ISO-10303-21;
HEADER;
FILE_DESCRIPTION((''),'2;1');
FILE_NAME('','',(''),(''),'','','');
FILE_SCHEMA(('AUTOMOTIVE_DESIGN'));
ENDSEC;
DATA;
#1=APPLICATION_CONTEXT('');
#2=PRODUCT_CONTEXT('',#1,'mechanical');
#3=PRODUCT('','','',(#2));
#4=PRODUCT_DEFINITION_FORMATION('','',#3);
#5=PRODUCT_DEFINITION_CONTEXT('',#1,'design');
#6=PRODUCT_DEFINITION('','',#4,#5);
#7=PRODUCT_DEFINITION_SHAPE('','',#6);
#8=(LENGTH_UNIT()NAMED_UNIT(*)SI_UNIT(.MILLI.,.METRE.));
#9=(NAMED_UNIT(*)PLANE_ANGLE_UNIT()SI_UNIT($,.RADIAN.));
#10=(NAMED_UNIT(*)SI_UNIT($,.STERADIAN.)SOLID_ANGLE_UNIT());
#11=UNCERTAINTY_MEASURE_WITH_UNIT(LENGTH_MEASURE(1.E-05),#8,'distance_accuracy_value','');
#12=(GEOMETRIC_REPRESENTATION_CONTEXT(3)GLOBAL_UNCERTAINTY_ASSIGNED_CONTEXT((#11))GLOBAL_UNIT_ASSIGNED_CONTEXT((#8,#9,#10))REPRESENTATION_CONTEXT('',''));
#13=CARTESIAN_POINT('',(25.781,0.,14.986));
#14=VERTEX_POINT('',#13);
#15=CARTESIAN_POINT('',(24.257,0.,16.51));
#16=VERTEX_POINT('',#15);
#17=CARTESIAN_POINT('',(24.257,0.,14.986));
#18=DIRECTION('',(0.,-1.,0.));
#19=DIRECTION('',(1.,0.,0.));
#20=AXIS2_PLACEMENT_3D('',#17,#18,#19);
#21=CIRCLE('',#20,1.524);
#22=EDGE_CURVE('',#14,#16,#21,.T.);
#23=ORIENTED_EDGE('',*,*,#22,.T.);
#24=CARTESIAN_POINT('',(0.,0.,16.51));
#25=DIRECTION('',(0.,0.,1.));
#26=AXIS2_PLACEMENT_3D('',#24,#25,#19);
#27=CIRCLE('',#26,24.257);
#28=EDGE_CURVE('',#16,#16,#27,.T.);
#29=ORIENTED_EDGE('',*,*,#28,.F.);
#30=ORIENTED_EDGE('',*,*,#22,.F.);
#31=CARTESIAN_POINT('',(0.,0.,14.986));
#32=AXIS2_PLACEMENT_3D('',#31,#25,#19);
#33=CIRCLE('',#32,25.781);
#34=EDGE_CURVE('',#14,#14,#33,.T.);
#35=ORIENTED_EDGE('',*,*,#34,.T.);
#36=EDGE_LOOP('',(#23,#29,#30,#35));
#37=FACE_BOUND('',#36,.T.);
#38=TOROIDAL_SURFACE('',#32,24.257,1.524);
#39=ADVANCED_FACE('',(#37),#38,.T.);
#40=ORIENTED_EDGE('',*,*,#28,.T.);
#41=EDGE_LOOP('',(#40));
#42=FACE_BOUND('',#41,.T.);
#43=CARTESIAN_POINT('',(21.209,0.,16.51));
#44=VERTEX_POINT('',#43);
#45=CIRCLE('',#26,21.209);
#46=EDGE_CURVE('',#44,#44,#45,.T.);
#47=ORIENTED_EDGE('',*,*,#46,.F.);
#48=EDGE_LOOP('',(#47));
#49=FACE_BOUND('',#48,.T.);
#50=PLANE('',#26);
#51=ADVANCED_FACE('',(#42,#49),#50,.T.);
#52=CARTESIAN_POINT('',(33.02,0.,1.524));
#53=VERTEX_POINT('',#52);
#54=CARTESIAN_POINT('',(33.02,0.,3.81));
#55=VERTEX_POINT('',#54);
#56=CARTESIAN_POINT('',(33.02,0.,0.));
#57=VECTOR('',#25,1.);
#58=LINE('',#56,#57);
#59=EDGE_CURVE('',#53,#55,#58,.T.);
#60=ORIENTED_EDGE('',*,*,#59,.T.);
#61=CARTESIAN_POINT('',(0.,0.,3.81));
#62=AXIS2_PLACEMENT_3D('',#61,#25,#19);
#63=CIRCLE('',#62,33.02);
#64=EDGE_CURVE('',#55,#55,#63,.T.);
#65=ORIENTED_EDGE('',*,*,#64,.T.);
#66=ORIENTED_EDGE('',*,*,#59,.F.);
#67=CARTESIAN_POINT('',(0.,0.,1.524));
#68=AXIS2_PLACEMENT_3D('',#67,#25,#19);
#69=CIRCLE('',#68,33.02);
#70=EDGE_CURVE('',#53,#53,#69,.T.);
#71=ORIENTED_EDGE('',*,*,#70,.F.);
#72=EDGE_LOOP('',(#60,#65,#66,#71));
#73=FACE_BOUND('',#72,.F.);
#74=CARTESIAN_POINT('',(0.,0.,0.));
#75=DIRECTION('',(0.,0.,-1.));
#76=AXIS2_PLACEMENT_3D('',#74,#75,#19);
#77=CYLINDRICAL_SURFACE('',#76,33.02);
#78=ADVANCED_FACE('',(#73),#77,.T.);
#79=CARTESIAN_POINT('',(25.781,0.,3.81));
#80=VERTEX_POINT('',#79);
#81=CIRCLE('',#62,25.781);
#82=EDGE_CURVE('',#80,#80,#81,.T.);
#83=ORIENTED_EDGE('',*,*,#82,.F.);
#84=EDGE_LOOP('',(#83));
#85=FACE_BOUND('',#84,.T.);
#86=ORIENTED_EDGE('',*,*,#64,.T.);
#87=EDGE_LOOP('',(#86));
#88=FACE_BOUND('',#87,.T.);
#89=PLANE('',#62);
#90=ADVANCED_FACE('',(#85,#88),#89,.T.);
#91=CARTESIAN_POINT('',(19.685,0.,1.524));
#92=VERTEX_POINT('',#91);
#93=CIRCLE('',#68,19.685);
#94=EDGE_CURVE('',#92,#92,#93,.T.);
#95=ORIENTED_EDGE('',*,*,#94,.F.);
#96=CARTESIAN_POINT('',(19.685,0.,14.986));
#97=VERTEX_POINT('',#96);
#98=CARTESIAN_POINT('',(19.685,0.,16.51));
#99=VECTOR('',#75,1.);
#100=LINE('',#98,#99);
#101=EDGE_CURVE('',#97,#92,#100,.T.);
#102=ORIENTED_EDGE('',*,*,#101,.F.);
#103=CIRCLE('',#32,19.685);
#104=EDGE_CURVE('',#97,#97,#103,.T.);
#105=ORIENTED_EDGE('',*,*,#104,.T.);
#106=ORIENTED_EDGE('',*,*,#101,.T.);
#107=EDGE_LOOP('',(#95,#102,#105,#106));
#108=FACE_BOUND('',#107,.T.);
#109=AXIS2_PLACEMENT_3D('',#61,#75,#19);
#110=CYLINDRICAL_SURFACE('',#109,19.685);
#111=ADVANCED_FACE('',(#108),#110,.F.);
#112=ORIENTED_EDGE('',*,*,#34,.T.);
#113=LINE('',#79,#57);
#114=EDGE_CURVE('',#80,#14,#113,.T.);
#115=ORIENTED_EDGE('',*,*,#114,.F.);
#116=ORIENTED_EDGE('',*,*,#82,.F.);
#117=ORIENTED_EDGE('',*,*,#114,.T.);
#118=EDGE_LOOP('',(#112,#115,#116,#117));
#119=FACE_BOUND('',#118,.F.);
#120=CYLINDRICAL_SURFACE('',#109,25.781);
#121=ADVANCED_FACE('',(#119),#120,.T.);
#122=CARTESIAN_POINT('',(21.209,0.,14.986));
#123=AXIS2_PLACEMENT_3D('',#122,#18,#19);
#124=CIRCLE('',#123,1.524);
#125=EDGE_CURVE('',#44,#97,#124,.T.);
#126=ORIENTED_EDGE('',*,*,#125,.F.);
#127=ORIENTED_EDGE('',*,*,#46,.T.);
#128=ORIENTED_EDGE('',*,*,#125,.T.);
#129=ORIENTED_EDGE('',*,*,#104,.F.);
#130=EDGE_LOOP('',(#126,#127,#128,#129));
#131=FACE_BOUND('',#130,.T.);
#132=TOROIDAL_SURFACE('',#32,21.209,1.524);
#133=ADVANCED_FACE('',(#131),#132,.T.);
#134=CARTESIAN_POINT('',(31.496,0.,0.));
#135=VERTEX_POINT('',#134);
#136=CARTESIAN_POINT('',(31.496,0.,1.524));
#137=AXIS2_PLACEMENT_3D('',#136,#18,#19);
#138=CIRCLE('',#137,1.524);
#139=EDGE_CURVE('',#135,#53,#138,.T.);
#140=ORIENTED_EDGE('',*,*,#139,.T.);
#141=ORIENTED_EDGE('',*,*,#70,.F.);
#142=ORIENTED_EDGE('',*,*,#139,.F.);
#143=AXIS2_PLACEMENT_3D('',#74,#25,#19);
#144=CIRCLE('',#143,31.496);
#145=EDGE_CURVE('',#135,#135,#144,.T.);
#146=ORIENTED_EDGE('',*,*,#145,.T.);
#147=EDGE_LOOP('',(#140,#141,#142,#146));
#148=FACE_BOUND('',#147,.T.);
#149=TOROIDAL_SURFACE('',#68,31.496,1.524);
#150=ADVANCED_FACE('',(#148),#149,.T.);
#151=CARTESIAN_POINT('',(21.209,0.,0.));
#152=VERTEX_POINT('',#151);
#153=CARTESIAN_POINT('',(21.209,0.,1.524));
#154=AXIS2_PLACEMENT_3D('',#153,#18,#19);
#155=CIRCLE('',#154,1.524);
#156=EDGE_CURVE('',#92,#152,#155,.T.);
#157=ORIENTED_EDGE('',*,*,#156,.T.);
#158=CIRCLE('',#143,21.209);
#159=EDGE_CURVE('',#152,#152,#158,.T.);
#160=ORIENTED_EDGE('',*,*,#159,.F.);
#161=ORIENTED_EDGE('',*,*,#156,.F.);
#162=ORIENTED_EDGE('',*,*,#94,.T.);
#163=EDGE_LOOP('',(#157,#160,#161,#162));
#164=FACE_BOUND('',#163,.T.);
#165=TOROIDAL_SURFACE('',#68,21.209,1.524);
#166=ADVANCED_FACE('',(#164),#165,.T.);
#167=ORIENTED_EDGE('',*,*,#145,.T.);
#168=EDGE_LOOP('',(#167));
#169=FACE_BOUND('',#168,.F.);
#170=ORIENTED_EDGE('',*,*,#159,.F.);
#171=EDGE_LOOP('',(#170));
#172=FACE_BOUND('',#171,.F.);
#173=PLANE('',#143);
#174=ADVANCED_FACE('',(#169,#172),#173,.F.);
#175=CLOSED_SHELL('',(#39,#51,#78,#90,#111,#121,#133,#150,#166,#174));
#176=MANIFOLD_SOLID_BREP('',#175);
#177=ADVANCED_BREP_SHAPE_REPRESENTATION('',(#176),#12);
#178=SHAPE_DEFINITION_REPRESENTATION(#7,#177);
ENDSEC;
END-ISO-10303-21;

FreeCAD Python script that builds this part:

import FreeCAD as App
import Part
import Sketcher
Q = App.Units.Quantity


def edges_at(feature, points):
    """Names of the edges that pass closest to the given points."""
    edges = feature.Shape.Edges
    near = lambda p: min(range(len(edges)), key=lambda i: edges[i].distToShape(Part.Vertex(*p))[0])
    return sorted({f"Edge{near(p) + 1}" for p in points})

doc = App.newDocument("Part")
params = doc.addObject("Spreadsheet::Sheet", "Params")
for row, (alias, value) in enumerate([
    ("sketch1_diameter", "2.6 in"),
    ("sketch1_diameter2", "1.55 in"),
    ("pad1_length", "0.15 in"),
    ("sketch2_diameter", "2.03 in"),
    ("sketch2_diameter2", "1.55 in"),
    ("pad2_length", "0.5 in"),
    ("fillet_radius", "0.06 in"),
], start=1):
    params.set(f"A{row}", alias)
    params.set(f"B{row}", "=" + value)
    params.setAlias(f"B{row}", alias)

body = doc.addObject("PartDesign::Body", "Body")

sketch1 = body.newObject("Sketcher::SketchObject", "Sketch")
sketch1.AttachmentSupport = (doc.getObject("XY_Plane"), [""])
sketch1.MapMode = "FlatFace"
sketch1.addGeometry([
    Part.Circle(App.Vector(0, 0, 0), App.Vector(0, 0, 1), 33),
    Part.Circle(App.Vector(0, 0, 0), App.Vector(0, 0, 1), 20),
], False)
sketch1.addConstraint([
    Sketcher.Constraint("Coincident", 0, 3, -1, 1),
    Sketcher.Constraint("Coincident", 1, 3, -1, 1),
    Sketcher.Constraint("Diameter", 0, Q("2.6 in")),
    Sketcher.Constraint("Diameter", 1, Q("1.55 in")),
])
sketch1.setExpression("Constraints[2]", "Params.sketch1_diameter")
sketch1.setExpression("Constraints[3]", "Params.sketch1_diameter2")
pad1 = body.newObject("PartDesign::Pad", "Pad")
pad1.Profile = sketch1
pad1.setExpression("Length", "Params.pad1_length")

sketch2 = body.newObject("Sketcher::SketchObject", "Sketch001")
sketch2.AttachmentSupport = (doc.getObject("XY_Plane"), [""])
sketch2.MapMode = "FlatFace"
sketch2.AttachmentOffset = App.Placement(App.Vector(0, 0, 0.15 * 25.4), App.Rotation())
sketch2.addGeometry([
    Part.Circle(App.Vector(0, 0, 0), App.Vector(0, 0, 1), 26),
    Part.Circle(App.Vector(0, 0, 0), App.Vector(0, 0, 1), 20),
], False)
sketch2.addConstraint([
    Sketcher.Constraint("Coincident", 0, 3, -1, 1),
    Sketcher.Constraint("Coincident", 1, 3, -1, 1),
    Sketcher.Constraint("Diameter", 0, Q("2.03 in")),
    Sketcher.Constraint("Diameter", 1, Q("1.55 in")),
])
sketch2.setExpression("Constraints[2]", "Params.sketch2_diameter")
sketch2.setExpression("Constraints[3]", "Params.sketch2_diameter2")
pad2 = body.newObject("PartDesign::Pad", "Pad001")
pad2.Profile = sketch2
pad2.setExpression("Length", "Params.pad2_length")
doc.recompute()

fillet = body.newObject("PartDesign::Fillet", "Fillet")
fillet.Base = (pad2, edges_at(pad2, [
    (-33.02, 0, 0),
    (-19.685, 0, 0),
    (-25.781, 0, 16.51),
    (-19.685, 0, 16.51),
]))
fillet.setExpression("Radius", "Params.fillet_radius")

doc.recompute()
